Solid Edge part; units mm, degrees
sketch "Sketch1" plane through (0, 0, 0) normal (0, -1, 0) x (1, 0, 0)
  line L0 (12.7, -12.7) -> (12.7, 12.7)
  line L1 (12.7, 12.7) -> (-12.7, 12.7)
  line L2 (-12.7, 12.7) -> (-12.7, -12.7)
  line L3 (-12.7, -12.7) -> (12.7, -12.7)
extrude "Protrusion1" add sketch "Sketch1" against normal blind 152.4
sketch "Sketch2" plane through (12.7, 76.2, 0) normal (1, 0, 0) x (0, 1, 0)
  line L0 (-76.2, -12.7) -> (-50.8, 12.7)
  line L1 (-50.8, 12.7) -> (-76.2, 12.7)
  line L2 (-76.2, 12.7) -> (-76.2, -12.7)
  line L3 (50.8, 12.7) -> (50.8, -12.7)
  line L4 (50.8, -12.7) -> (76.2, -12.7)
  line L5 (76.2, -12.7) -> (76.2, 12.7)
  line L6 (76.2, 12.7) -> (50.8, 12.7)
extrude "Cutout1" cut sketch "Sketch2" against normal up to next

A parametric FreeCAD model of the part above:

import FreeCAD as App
import Part
import Sketcher
from FreeCAD import Vector
Q = App.Units.Quantity


def add_polygon(sketch, points):
    """Adds a closed chain of lines whose ends are joined by coincident constraints."""
    first, n = sketch.GeometryCount, len(points)
    for a, b in zip(points, points[1:] + points[:1]):
        sketch.addGeometry(Part.LineSegment(App.Vector(*a, 0), App.Vector(*b, 0)), False)
    for i in range(n):
        sketch.addConstraint(Sketcher.Constraint("Coincident", first + i, 2, first + (i + 1) % n, 1))

doc = App.newDocument("Part")
body = doc.addObject("PartDesign::Body", "Body")

# Sketch on XZ plane
sketch1 = body.newObject("Sketcher::SketchObject", "Sketch")
sketch1.AttachmentSupport = (doc.getObject("XZ_Plane"), [""])
sketch1.MapMode = "FlatFace"
add_polygon(sketch1, [(-13, -13), (13, -13), (13, 13), (-13, 13)])  # lines 0-3
sketch1.addConstraint(Sketcher.Constraint("Horizontal", 0))
sketch1.addConstraint(Sketcher.Constraint("Vertical", 1))
sketch1.addConstraint(Sketcher.Constraint("Horizontal", 2))
sketch1.addConstraint(Sketcher.Constraint("Vertical", 3))
sketch1.addConstraint(Sketcher.Constraint("Symmetric", 0, 2, 2, 2, -1, 1))
sketch1.addConstraint(Sketcher.Constraint("Equal", 2, 1))
sketch1.addConstraint(Sketcher.Constraint("DistanceX", 0, 1, 0, 2, Q("1 in")))
pad1 = body.newObject("PartDesign::Pad", "Pad")
pad1.Profile = sketch1
pad1.Length = Q("6 in")
pad1.Reversed = True

# Sketch on YZ plane
sketch2 = body.newObject("Sketcher::SketchObject", "Sketch001")
sketch2.AttachmentSupport = (doc.getObject("YZ_Plane"), [""])
sketch2.MapMode = "FlatFace"
sketch2.AttachmentOffset = App.Placement(Vector(0, 0, 0.5 * 25.4), App.Rotation())
add_polygon(sketch2, [(0, 13), (0, -13), (25, 13)])  # lines 0-2
add_polygon(sketch2, [(152, 13), (127, 13), (127, -13), (152, -13)])  # lines 3-6
sketch2.addConstraint(Sketcher.Constraint("Vertical", 0))
sketch2.addConstraint(Sketcher.Constraint("Horizontal", 2))
sketch2.addConstraint(Sketcher.Constraint("Horizontal", 3))
sketch2.addConstraint(Sketcher.Constraint("Vertical", 4))
sketch2.addConstraint(Sketcher.Constraint("Horizontal", 5))
sketch2.addConstraint(Sketcher.Constraint("Vertical", 6))
sketch2.addConstraint(Sketcher.Constraint("Symmetric", 0, 2, 2, 2, -1, 1))
sketch2.addConstraint(Sketcher.Constraint("Horizontal", 2, 2, 3, 2))
sketch2.addConstraint(Sketcher.Constraint("Horizontal", 0, 2, 4, 2))
sketch2.addConstraint(Sketcher.Constraint("Equal", 2, 3))
sketch2.addConstraint(Sketcher.Constraint("Equal", 5, 0))
sketch2.addConstraint(Sketcher.Constraint("DistanceX", 2, 2, 2, 1, Q("1 in")))
sketch2.addConstraint(Sketcher.Constraint("DistanceX", -1, 1, 3, 2, Q("5 in")))
pocket1 = body.newObject("PartDesign::Pocket", "Pocket")
pocket1.Profile = sketch2
pocket1.Type = "UpToFirst"

doc.recompute()
